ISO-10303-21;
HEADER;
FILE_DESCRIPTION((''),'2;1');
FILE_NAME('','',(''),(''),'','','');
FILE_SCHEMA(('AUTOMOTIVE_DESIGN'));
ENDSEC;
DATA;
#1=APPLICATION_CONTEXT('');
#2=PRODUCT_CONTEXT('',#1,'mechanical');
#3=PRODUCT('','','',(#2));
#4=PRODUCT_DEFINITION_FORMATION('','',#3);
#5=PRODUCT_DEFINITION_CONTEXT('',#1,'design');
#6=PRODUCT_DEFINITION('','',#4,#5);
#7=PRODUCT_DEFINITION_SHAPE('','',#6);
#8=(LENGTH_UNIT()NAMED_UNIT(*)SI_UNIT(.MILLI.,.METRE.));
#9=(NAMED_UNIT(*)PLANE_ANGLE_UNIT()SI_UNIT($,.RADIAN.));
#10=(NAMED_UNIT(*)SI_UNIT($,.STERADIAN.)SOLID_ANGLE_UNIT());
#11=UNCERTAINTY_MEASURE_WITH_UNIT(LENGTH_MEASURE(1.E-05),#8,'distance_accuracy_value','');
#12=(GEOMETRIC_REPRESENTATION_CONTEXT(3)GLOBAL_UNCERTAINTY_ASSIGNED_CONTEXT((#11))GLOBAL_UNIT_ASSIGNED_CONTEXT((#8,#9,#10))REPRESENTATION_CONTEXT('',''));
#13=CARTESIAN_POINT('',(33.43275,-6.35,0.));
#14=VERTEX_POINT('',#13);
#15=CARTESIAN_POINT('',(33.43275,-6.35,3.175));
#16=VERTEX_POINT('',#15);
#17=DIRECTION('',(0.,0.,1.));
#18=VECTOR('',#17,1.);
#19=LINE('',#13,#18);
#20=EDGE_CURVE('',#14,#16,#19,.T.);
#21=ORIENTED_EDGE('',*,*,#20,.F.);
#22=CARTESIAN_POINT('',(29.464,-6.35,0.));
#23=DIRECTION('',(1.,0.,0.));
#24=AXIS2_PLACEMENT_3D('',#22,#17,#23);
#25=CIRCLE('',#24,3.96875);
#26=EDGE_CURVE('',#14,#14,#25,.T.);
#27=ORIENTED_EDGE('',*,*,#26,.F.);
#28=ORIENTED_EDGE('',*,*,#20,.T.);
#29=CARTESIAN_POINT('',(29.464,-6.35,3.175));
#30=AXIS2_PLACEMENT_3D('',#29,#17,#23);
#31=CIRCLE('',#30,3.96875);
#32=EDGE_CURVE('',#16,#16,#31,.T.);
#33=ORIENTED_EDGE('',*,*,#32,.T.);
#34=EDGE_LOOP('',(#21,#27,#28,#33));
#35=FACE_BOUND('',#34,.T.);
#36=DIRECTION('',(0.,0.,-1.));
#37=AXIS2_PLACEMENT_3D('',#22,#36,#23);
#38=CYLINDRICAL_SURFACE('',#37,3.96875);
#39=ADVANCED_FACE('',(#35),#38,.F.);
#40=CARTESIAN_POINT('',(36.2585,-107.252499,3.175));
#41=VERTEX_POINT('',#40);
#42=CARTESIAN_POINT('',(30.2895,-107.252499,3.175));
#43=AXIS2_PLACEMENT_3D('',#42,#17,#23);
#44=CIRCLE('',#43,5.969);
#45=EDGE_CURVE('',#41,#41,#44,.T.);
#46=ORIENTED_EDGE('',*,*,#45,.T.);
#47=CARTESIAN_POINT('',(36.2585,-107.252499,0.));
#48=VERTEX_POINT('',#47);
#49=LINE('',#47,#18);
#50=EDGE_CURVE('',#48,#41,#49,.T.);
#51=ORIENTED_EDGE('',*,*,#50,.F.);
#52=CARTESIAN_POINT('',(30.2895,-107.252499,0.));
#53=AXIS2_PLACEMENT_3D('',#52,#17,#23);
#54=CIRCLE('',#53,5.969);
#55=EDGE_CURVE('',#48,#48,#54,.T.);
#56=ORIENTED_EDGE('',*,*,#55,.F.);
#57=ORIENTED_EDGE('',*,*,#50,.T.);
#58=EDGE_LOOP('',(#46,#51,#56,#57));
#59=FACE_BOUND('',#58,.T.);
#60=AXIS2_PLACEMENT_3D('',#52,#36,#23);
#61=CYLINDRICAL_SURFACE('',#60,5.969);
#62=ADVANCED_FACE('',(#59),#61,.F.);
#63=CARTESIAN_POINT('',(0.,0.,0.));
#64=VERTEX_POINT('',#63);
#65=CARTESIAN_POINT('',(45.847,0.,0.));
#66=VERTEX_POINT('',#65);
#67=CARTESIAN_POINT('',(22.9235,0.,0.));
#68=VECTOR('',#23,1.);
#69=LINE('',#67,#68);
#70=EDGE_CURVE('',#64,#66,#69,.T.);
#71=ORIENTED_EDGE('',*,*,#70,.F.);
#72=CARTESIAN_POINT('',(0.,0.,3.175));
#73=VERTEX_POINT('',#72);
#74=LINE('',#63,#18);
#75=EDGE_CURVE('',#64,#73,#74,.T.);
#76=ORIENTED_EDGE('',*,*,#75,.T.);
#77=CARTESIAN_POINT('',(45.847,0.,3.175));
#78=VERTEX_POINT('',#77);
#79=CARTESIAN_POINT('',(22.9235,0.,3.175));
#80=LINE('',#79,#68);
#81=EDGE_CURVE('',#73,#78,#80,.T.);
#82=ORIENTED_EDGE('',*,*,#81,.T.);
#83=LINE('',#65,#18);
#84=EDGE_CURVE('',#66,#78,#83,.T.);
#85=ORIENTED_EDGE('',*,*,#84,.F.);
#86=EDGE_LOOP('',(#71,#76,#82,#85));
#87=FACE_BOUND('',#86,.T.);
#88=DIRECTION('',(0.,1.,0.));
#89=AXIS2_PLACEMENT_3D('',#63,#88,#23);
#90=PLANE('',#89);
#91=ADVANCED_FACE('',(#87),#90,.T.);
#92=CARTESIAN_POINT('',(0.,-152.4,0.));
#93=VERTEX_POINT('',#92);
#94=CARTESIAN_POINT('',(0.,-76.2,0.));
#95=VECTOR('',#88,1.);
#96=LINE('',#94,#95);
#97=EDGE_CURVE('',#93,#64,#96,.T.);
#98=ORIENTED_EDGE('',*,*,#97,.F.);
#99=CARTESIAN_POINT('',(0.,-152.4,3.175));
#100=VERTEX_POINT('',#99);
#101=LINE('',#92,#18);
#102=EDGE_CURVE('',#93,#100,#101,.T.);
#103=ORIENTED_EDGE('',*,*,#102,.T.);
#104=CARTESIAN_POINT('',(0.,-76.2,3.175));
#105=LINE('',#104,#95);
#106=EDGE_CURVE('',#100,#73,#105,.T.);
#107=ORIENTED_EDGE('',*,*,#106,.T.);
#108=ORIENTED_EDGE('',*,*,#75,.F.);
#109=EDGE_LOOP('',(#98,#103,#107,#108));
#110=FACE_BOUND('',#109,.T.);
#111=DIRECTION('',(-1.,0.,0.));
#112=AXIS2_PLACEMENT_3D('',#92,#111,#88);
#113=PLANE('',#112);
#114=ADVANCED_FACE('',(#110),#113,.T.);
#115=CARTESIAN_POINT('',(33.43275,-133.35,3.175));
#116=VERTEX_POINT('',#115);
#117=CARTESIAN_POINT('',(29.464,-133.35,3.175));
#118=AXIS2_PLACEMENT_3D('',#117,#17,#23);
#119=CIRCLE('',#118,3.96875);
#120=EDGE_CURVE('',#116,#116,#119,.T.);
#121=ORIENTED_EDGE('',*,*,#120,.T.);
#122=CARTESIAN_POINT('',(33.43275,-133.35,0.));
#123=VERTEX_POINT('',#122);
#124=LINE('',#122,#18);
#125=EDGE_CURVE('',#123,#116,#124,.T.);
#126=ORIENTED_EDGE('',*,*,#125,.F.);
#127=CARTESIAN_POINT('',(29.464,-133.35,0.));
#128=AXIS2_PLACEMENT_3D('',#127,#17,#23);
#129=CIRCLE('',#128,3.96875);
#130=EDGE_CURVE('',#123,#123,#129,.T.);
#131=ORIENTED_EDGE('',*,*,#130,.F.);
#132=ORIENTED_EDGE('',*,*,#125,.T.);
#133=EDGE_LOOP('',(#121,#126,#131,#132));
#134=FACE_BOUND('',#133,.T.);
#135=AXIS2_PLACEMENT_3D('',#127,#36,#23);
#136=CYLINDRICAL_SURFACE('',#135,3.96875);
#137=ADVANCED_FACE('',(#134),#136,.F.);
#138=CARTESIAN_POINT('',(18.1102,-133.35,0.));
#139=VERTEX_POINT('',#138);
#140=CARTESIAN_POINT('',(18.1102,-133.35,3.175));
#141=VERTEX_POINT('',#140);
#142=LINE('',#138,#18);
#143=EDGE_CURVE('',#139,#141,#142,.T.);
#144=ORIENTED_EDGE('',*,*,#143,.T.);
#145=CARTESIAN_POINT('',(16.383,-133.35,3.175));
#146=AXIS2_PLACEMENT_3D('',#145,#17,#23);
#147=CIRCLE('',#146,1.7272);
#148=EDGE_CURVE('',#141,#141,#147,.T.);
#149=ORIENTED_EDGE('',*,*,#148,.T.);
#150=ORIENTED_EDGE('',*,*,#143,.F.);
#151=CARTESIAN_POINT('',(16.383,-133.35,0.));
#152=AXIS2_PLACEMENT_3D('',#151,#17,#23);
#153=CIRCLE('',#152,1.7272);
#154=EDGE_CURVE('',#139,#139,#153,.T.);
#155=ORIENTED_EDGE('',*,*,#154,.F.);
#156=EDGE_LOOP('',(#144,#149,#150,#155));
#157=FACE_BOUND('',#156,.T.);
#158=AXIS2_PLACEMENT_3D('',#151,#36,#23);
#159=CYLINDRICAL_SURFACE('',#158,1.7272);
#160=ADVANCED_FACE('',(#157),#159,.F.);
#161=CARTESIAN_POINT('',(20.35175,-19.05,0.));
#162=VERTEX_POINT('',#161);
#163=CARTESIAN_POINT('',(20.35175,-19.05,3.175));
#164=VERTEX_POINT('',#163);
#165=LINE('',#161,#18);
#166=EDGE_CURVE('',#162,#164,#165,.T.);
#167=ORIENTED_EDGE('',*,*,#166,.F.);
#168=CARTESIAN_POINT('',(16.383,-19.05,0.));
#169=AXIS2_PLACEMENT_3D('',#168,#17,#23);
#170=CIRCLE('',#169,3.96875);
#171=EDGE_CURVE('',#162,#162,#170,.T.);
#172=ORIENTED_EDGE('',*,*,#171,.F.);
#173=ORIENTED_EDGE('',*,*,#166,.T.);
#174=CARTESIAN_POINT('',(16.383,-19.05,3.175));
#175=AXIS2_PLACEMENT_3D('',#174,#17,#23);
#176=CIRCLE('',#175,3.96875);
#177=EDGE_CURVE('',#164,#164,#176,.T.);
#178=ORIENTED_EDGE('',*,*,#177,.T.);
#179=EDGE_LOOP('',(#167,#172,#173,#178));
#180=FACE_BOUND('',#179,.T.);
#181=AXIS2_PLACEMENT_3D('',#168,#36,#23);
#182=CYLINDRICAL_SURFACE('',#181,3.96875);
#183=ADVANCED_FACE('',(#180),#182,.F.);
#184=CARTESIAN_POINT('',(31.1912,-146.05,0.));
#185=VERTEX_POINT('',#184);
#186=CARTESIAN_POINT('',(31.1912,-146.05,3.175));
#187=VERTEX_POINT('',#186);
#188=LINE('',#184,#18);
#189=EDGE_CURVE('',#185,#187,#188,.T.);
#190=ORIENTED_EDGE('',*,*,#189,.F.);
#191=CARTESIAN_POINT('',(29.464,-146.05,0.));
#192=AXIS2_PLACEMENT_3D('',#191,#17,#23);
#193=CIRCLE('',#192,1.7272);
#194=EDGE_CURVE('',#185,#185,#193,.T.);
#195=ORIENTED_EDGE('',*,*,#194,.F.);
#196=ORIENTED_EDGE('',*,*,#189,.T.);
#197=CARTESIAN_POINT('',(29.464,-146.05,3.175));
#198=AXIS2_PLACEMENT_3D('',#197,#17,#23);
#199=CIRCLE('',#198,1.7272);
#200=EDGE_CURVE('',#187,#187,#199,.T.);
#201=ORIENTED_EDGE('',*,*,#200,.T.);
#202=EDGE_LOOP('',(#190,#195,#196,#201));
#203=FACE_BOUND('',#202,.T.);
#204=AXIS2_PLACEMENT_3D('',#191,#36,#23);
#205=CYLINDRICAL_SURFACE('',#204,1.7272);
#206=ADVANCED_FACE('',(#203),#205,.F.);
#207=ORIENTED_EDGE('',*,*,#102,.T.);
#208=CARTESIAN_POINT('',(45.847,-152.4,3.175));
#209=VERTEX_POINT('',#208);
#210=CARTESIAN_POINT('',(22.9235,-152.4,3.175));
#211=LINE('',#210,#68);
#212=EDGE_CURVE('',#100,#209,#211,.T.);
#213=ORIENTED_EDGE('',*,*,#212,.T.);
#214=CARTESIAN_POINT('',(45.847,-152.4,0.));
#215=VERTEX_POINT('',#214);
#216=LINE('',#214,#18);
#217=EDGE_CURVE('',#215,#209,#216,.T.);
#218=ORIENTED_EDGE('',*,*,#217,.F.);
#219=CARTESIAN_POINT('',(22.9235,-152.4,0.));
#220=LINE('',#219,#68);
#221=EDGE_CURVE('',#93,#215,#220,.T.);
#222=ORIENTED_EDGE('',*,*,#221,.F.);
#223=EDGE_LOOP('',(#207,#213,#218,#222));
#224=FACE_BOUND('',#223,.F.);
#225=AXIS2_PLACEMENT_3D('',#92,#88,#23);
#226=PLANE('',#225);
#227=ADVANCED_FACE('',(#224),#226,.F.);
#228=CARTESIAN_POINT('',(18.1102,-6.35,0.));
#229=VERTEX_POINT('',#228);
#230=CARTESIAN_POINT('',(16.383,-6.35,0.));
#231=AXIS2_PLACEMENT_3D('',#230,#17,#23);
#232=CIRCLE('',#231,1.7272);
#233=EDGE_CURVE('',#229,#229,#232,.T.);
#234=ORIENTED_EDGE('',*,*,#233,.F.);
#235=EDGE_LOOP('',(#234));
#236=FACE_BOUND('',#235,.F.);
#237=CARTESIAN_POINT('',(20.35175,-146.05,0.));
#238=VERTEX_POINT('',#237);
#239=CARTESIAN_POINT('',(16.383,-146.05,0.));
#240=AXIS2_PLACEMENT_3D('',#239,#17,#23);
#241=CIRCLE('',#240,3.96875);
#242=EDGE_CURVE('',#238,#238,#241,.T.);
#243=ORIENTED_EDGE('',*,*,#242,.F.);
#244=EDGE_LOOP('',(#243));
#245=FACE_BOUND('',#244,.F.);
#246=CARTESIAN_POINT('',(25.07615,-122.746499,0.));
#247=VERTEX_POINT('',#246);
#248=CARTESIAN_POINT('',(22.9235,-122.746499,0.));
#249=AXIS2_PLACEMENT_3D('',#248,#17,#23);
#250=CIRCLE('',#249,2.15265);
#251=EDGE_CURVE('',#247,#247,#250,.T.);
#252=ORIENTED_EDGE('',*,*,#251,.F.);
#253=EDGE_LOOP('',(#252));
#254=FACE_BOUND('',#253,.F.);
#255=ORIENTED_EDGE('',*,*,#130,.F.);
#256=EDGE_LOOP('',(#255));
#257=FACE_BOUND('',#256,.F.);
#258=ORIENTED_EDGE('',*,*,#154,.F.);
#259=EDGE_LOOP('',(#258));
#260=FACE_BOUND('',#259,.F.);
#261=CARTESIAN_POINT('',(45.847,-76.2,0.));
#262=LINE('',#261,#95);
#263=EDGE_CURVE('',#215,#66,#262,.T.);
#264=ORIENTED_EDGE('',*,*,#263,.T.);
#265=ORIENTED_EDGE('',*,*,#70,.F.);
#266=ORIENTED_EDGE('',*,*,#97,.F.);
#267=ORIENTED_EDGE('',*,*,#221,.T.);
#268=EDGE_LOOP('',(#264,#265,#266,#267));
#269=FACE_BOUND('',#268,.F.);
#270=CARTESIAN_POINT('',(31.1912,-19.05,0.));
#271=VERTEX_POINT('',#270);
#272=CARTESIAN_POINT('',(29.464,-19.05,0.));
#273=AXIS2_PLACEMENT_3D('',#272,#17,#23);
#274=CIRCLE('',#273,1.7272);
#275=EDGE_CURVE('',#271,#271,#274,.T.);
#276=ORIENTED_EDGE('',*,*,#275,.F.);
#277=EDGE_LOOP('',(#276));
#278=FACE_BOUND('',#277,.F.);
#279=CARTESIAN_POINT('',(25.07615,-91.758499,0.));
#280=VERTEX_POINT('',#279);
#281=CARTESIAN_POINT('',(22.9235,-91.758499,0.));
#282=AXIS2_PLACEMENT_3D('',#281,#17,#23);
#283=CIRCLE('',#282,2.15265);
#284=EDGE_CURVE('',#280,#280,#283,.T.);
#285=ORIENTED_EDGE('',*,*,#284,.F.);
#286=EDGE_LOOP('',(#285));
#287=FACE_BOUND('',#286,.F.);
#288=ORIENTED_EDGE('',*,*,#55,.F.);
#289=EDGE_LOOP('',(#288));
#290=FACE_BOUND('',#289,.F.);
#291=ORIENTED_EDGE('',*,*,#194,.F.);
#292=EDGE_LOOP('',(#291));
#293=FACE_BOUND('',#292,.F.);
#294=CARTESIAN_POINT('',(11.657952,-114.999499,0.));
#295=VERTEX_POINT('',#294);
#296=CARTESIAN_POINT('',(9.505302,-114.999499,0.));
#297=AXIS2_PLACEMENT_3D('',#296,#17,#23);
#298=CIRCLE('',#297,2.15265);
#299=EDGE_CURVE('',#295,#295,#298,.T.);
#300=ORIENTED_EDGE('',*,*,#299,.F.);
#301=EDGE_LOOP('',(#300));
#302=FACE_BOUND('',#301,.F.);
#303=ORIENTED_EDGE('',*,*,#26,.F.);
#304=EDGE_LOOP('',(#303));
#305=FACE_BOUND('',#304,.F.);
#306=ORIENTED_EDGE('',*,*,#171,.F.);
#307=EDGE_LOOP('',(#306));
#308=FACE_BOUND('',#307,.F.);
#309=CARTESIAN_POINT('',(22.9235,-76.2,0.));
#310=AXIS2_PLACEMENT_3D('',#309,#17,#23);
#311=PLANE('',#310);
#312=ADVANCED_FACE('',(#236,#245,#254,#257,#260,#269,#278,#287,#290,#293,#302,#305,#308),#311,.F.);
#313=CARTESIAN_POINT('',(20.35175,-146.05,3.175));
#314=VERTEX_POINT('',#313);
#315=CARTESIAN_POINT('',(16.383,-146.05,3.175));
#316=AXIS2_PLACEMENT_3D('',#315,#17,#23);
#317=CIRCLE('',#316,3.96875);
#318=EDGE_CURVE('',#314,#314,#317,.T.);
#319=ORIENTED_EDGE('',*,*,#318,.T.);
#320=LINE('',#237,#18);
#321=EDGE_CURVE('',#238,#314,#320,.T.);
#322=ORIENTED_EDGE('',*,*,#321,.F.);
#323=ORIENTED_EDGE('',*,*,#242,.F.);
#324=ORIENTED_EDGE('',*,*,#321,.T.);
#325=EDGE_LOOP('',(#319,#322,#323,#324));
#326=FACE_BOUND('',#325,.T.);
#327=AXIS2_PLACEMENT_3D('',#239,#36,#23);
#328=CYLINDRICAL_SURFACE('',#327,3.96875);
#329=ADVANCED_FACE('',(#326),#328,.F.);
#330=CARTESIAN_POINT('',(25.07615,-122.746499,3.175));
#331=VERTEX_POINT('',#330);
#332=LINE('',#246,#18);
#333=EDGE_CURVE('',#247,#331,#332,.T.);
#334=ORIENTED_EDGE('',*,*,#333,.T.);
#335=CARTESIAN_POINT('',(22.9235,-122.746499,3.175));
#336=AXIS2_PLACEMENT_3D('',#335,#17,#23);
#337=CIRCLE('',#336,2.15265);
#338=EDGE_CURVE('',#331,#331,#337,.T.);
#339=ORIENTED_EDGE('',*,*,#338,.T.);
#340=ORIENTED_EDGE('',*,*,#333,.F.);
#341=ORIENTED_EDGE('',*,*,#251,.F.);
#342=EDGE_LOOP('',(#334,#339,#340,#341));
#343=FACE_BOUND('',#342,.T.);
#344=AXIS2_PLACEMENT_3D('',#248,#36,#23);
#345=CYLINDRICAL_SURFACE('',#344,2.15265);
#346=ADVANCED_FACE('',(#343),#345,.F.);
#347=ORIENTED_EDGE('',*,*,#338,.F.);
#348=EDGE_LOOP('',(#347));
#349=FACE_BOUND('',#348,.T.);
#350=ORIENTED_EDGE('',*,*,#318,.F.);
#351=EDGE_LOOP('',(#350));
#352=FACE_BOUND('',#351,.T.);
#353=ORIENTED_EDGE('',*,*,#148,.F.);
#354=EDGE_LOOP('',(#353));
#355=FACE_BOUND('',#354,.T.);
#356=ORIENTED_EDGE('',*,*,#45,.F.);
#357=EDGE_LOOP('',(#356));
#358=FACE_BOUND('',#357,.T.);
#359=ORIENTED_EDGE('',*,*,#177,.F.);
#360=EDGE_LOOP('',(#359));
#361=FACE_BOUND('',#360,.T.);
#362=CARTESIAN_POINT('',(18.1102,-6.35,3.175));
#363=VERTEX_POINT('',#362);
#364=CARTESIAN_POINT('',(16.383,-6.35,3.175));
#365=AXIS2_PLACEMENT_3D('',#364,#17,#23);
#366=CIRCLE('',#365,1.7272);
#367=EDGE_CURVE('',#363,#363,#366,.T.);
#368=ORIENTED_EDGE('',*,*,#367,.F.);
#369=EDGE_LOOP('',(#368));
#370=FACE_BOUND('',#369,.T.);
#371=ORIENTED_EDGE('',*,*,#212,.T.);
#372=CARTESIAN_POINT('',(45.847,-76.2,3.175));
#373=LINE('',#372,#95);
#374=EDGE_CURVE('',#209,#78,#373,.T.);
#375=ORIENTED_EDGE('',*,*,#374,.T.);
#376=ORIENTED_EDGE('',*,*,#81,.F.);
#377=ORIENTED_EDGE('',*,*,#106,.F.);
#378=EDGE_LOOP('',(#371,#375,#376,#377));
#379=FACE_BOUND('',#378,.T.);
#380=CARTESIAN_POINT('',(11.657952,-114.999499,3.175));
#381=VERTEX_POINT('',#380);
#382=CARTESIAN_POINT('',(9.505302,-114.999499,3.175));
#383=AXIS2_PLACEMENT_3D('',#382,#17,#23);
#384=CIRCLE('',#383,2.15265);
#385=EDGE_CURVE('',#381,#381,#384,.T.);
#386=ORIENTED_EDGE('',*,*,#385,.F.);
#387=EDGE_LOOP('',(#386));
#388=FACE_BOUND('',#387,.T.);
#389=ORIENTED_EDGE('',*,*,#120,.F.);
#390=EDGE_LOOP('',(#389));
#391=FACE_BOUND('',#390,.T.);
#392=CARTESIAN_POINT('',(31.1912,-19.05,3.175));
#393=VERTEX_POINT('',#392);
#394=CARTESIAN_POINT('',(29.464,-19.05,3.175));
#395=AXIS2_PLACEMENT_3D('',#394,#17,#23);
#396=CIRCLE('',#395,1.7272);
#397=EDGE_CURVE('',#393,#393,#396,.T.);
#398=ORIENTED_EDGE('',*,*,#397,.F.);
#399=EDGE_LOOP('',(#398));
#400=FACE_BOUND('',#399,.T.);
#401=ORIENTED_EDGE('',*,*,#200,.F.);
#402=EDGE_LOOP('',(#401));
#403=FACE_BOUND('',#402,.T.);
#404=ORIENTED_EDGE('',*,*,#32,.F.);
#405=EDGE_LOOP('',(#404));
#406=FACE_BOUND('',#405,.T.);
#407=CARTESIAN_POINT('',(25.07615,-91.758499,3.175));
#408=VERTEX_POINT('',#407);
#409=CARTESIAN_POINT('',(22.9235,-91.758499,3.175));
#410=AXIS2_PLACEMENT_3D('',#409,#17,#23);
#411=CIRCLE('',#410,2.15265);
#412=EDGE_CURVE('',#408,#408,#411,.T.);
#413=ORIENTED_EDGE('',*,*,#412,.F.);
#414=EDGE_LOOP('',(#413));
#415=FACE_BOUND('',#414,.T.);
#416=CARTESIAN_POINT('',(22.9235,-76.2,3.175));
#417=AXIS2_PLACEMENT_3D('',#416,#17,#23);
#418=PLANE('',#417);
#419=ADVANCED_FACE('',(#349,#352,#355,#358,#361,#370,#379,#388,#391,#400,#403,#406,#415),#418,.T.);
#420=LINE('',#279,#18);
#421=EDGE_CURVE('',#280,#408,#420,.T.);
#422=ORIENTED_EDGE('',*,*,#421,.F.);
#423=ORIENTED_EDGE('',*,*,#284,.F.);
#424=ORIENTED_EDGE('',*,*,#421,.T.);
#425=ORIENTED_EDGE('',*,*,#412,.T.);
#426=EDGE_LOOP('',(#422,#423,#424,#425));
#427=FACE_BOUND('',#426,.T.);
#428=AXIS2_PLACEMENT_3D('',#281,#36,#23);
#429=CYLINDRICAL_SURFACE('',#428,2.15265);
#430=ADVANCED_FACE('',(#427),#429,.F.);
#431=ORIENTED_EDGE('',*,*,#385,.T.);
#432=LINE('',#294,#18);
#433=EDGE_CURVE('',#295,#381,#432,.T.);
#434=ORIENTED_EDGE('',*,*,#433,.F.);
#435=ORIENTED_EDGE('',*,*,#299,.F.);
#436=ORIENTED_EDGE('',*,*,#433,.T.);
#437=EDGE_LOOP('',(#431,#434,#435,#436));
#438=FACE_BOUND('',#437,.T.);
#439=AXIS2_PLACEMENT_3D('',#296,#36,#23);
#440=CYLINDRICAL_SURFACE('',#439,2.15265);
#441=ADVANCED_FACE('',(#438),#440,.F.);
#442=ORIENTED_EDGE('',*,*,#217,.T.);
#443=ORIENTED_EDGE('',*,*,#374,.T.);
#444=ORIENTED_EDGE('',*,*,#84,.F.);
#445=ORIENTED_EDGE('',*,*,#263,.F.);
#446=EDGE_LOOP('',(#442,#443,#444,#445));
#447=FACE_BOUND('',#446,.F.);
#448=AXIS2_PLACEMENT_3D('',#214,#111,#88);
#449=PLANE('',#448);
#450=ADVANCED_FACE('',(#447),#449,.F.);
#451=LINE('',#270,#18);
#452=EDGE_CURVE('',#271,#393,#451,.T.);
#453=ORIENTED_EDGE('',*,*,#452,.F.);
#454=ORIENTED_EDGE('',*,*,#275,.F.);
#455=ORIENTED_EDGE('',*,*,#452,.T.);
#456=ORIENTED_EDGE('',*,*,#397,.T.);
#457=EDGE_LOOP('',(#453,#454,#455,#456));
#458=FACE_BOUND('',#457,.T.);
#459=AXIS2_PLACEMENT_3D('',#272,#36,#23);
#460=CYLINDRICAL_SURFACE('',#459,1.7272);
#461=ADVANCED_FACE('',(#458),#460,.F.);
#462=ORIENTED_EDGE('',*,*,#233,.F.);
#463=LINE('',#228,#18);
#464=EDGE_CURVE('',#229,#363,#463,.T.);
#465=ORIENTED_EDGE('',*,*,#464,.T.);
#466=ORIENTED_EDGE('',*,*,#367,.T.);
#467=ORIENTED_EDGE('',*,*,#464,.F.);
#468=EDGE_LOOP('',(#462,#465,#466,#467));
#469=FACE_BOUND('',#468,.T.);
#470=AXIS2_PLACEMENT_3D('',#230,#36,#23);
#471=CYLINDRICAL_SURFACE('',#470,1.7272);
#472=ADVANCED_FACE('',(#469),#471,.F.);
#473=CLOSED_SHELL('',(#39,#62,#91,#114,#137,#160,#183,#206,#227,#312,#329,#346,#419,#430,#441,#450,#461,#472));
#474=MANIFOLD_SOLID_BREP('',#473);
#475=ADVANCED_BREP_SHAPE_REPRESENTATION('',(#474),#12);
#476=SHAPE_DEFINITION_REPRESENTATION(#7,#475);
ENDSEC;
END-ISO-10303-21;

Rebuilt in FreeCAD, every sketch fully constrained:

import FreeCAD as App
import Part
import Sketcher
from FreeCAD import Vector
Q = App.Units.Quantity

doc = App.newDocument("Part")
body = doc.addObject("PartDesign::Body", "Body")

sketch1 = body.newObject("Sketcher::SketchObject", "Sketch")
sketch1.AttachmentSupport = (doc.getObject("XY_Plane"), [""])
sketch1.MapMode = "FlatFace"
sketch1.addGeometry([
    Part.LineSegment(Vector(0, 0, 0), Vector(0, -152.4, 0)),
    Part.LineSegment(Vector(0, -152.4, 0), Vector(45.847, -152.4, 0)),
    Part.LineSegment(Vector(45.847, -152.4, 0), Vector(45.847, 0, 0)),
    Part.LineSegment(Vector(45.847, 0, 0), Vector(0, 0, 0)),
    Part.Circle(Vector(9.505302, -114.999499, 0), Vector(0, 0, 1), 2.15265),
    Part.Circle(Vector(16.383, -146.05, 0), Vector(0, 0, 1), 3.96875),
    Part.Circle(Vector(16.383, -133.35, 0), Vector(0, 0, 1), 1.7272),
    Part.Circle(Vector(22.9235, -122.746499, 0), Vector(0, 0, 1), 2.15265),
    Part.Circle(Vector(29.464, -146.05, 0), Vector(0, 0, 1), 1.7272),
    Part.Circle(Vector(29.464, -133.35, 0), Vector(0, 0, 1), 3.96875),
    Part.Circle(Vector(22.9235, -91.758499, 0), Vector(0, 0, 1), 2.15265),
    Part.Circle(Vector(30.2895, -107.252499, 0), Vector(0, 0, 1), 5.969),
    Part.Circle(Vector(16.383, -19.05, 0), Vector(0, 0, 1), 3.96875),
    Part.Circle(Vector(16.383, -6.35, 0), Vector(0, 0, 1), 1.7272),
    Part.Circle(Vector(29.464, -19.05, 0), Vector(0, 0, 1), 1.7272),
    Part.Circle(Vector(29.464, -6.35, 0), Vector(0, 0, 1), 3.96875),
], False)
sketch1.addConstraint([
    Sketcher.Constraint("Coincident", 0, 2, 1, 1),
    Sketcher.Constraint("Coincident", 1, 2, 2, 1),
    Sketcher.Constraint("Coincident", 2, 2, 3, 1),
    Sketcher.Constraint("Coincident", 3, 2, 0, 1),
    Sketcher.Constraint("Vertical", 0),
    Sketcher.Constraint("Horizontal", 1),
    Sketcher.Constraint("Vertical", 2),
    Sketcher.Constraint("Horizontal", 3),
    Sketcher.Constraint("Coincident", 3, 2, -1, 1),
    Sketcher.Constraint("Equal", 4, 7),
    Sketcher.Constraint("Equal", 6, 8),
    Sketcher.Constraint("Equal", 5, 9),
    Sketcher.Constraint("Equal", 7, 10),
    Sketcher.Constraint("Equal", 9, 12),
    Sketcher.Constraint("Equal", 8, 13),
    Sketcher.Constraint("Equal", 13, 14),
    Sketcher.Constraint("Equal", 12, 15),
    Sketcher.Constraint("Horizontal", 5, 3, 8, 3),
    Sketcher.Constraint("Horizontal", 6, 3, 9, 3),
    Sketcher.Constraint("Horizontal", 12, 3, 14, 3),
    Sketcher.Constraint("Horizontal", 13, 3, 15, 3),
    Sketcher.Constraint("Vertical", 5, 3, 6, 3),
    Sketcher.Constraint("Vertical", 8, 3, 9, 3),
    Sketcher.Constraint("Vertical", 7, 3, 10, 3),
    Sketcher.Constraint("Vertical", 6, 3, 12, 3),
    Sketcher.Constraint("Vertical", 12, 3, 13, 3),
    Sketcher.Constraint("Vertical", 9, 3, 14, 3),
    Sketcher.Constraint("Vertical", 14, 3, 15, 3),
    Sketcher.Constraint("Diameter", 11, Q("0.47 in")),
    Sketcher.Constraint("DistanceY", 0, 2, 0, 1, Q("6 in")),
    Sketcher.Constraint("Diameter", 5, Q("0.3125 in")),
    Sketcher.Constraint("Diameter", 6, Q("0.136 in")),
    Sketcher.Constraint("Diameter", 4, Q("0.1695 in")),
    Sketcher.Constraint("DistanceY", 5, 3, 6, 3, Q("0.5 in")),
    Sketcher.Constraint("DistanceY", 6, 3, 12, 3, Q("4.5 in")),
    Sketcher.Constraint("DistanceY", 12, 3, 13, 3, Q("0.5 in")),
    Sketcher.Constraint("DistanceX", 1, 1, 1, 2, Q("1.805 in")),
    Sketcher.Constraint("DistanceY", 5, 3, -1, 1, Q("5.75 in")),
    Sketcher.Constraint("DistanceX", -1, 1, 8, 3, Q("1.16 in")),
    Sketcher.Constraint("DistanceY", 7, 3, 10, 3, Q("1.22 in")),
    Sketcher.Constraint("DistanceX", 7, 3, 11, 3, Q("0.29 in")),
    Sketcher.Constraint("DistanceY", 7, 3, 11, 3, Q("0.61 in")),
    Sketcher.Constraint("DistanceX", 5, 3, 1, 2, Q("1.16 in")),
    Sketcher.Constraint("DistanceY", 7, 3, 4, 3, Q("0.305 in")),
    Sketcher.Constraint("DistanceX", -1, 1, 7, 3, Q("0.9025 in")),
    Sketcher.Constraint("DistanceY", 4, 3, -1, 1, 114.999499),
    Sketcher.Constraint("DistanceX", 4, 3, 11, 3, 20.784198),
])
pad1 = body.newObject("PartDesign::Pad", "Pad")
pad1.Profile = sketch1
pad1.Length = Q("0.125 in")

doc.recompute()
